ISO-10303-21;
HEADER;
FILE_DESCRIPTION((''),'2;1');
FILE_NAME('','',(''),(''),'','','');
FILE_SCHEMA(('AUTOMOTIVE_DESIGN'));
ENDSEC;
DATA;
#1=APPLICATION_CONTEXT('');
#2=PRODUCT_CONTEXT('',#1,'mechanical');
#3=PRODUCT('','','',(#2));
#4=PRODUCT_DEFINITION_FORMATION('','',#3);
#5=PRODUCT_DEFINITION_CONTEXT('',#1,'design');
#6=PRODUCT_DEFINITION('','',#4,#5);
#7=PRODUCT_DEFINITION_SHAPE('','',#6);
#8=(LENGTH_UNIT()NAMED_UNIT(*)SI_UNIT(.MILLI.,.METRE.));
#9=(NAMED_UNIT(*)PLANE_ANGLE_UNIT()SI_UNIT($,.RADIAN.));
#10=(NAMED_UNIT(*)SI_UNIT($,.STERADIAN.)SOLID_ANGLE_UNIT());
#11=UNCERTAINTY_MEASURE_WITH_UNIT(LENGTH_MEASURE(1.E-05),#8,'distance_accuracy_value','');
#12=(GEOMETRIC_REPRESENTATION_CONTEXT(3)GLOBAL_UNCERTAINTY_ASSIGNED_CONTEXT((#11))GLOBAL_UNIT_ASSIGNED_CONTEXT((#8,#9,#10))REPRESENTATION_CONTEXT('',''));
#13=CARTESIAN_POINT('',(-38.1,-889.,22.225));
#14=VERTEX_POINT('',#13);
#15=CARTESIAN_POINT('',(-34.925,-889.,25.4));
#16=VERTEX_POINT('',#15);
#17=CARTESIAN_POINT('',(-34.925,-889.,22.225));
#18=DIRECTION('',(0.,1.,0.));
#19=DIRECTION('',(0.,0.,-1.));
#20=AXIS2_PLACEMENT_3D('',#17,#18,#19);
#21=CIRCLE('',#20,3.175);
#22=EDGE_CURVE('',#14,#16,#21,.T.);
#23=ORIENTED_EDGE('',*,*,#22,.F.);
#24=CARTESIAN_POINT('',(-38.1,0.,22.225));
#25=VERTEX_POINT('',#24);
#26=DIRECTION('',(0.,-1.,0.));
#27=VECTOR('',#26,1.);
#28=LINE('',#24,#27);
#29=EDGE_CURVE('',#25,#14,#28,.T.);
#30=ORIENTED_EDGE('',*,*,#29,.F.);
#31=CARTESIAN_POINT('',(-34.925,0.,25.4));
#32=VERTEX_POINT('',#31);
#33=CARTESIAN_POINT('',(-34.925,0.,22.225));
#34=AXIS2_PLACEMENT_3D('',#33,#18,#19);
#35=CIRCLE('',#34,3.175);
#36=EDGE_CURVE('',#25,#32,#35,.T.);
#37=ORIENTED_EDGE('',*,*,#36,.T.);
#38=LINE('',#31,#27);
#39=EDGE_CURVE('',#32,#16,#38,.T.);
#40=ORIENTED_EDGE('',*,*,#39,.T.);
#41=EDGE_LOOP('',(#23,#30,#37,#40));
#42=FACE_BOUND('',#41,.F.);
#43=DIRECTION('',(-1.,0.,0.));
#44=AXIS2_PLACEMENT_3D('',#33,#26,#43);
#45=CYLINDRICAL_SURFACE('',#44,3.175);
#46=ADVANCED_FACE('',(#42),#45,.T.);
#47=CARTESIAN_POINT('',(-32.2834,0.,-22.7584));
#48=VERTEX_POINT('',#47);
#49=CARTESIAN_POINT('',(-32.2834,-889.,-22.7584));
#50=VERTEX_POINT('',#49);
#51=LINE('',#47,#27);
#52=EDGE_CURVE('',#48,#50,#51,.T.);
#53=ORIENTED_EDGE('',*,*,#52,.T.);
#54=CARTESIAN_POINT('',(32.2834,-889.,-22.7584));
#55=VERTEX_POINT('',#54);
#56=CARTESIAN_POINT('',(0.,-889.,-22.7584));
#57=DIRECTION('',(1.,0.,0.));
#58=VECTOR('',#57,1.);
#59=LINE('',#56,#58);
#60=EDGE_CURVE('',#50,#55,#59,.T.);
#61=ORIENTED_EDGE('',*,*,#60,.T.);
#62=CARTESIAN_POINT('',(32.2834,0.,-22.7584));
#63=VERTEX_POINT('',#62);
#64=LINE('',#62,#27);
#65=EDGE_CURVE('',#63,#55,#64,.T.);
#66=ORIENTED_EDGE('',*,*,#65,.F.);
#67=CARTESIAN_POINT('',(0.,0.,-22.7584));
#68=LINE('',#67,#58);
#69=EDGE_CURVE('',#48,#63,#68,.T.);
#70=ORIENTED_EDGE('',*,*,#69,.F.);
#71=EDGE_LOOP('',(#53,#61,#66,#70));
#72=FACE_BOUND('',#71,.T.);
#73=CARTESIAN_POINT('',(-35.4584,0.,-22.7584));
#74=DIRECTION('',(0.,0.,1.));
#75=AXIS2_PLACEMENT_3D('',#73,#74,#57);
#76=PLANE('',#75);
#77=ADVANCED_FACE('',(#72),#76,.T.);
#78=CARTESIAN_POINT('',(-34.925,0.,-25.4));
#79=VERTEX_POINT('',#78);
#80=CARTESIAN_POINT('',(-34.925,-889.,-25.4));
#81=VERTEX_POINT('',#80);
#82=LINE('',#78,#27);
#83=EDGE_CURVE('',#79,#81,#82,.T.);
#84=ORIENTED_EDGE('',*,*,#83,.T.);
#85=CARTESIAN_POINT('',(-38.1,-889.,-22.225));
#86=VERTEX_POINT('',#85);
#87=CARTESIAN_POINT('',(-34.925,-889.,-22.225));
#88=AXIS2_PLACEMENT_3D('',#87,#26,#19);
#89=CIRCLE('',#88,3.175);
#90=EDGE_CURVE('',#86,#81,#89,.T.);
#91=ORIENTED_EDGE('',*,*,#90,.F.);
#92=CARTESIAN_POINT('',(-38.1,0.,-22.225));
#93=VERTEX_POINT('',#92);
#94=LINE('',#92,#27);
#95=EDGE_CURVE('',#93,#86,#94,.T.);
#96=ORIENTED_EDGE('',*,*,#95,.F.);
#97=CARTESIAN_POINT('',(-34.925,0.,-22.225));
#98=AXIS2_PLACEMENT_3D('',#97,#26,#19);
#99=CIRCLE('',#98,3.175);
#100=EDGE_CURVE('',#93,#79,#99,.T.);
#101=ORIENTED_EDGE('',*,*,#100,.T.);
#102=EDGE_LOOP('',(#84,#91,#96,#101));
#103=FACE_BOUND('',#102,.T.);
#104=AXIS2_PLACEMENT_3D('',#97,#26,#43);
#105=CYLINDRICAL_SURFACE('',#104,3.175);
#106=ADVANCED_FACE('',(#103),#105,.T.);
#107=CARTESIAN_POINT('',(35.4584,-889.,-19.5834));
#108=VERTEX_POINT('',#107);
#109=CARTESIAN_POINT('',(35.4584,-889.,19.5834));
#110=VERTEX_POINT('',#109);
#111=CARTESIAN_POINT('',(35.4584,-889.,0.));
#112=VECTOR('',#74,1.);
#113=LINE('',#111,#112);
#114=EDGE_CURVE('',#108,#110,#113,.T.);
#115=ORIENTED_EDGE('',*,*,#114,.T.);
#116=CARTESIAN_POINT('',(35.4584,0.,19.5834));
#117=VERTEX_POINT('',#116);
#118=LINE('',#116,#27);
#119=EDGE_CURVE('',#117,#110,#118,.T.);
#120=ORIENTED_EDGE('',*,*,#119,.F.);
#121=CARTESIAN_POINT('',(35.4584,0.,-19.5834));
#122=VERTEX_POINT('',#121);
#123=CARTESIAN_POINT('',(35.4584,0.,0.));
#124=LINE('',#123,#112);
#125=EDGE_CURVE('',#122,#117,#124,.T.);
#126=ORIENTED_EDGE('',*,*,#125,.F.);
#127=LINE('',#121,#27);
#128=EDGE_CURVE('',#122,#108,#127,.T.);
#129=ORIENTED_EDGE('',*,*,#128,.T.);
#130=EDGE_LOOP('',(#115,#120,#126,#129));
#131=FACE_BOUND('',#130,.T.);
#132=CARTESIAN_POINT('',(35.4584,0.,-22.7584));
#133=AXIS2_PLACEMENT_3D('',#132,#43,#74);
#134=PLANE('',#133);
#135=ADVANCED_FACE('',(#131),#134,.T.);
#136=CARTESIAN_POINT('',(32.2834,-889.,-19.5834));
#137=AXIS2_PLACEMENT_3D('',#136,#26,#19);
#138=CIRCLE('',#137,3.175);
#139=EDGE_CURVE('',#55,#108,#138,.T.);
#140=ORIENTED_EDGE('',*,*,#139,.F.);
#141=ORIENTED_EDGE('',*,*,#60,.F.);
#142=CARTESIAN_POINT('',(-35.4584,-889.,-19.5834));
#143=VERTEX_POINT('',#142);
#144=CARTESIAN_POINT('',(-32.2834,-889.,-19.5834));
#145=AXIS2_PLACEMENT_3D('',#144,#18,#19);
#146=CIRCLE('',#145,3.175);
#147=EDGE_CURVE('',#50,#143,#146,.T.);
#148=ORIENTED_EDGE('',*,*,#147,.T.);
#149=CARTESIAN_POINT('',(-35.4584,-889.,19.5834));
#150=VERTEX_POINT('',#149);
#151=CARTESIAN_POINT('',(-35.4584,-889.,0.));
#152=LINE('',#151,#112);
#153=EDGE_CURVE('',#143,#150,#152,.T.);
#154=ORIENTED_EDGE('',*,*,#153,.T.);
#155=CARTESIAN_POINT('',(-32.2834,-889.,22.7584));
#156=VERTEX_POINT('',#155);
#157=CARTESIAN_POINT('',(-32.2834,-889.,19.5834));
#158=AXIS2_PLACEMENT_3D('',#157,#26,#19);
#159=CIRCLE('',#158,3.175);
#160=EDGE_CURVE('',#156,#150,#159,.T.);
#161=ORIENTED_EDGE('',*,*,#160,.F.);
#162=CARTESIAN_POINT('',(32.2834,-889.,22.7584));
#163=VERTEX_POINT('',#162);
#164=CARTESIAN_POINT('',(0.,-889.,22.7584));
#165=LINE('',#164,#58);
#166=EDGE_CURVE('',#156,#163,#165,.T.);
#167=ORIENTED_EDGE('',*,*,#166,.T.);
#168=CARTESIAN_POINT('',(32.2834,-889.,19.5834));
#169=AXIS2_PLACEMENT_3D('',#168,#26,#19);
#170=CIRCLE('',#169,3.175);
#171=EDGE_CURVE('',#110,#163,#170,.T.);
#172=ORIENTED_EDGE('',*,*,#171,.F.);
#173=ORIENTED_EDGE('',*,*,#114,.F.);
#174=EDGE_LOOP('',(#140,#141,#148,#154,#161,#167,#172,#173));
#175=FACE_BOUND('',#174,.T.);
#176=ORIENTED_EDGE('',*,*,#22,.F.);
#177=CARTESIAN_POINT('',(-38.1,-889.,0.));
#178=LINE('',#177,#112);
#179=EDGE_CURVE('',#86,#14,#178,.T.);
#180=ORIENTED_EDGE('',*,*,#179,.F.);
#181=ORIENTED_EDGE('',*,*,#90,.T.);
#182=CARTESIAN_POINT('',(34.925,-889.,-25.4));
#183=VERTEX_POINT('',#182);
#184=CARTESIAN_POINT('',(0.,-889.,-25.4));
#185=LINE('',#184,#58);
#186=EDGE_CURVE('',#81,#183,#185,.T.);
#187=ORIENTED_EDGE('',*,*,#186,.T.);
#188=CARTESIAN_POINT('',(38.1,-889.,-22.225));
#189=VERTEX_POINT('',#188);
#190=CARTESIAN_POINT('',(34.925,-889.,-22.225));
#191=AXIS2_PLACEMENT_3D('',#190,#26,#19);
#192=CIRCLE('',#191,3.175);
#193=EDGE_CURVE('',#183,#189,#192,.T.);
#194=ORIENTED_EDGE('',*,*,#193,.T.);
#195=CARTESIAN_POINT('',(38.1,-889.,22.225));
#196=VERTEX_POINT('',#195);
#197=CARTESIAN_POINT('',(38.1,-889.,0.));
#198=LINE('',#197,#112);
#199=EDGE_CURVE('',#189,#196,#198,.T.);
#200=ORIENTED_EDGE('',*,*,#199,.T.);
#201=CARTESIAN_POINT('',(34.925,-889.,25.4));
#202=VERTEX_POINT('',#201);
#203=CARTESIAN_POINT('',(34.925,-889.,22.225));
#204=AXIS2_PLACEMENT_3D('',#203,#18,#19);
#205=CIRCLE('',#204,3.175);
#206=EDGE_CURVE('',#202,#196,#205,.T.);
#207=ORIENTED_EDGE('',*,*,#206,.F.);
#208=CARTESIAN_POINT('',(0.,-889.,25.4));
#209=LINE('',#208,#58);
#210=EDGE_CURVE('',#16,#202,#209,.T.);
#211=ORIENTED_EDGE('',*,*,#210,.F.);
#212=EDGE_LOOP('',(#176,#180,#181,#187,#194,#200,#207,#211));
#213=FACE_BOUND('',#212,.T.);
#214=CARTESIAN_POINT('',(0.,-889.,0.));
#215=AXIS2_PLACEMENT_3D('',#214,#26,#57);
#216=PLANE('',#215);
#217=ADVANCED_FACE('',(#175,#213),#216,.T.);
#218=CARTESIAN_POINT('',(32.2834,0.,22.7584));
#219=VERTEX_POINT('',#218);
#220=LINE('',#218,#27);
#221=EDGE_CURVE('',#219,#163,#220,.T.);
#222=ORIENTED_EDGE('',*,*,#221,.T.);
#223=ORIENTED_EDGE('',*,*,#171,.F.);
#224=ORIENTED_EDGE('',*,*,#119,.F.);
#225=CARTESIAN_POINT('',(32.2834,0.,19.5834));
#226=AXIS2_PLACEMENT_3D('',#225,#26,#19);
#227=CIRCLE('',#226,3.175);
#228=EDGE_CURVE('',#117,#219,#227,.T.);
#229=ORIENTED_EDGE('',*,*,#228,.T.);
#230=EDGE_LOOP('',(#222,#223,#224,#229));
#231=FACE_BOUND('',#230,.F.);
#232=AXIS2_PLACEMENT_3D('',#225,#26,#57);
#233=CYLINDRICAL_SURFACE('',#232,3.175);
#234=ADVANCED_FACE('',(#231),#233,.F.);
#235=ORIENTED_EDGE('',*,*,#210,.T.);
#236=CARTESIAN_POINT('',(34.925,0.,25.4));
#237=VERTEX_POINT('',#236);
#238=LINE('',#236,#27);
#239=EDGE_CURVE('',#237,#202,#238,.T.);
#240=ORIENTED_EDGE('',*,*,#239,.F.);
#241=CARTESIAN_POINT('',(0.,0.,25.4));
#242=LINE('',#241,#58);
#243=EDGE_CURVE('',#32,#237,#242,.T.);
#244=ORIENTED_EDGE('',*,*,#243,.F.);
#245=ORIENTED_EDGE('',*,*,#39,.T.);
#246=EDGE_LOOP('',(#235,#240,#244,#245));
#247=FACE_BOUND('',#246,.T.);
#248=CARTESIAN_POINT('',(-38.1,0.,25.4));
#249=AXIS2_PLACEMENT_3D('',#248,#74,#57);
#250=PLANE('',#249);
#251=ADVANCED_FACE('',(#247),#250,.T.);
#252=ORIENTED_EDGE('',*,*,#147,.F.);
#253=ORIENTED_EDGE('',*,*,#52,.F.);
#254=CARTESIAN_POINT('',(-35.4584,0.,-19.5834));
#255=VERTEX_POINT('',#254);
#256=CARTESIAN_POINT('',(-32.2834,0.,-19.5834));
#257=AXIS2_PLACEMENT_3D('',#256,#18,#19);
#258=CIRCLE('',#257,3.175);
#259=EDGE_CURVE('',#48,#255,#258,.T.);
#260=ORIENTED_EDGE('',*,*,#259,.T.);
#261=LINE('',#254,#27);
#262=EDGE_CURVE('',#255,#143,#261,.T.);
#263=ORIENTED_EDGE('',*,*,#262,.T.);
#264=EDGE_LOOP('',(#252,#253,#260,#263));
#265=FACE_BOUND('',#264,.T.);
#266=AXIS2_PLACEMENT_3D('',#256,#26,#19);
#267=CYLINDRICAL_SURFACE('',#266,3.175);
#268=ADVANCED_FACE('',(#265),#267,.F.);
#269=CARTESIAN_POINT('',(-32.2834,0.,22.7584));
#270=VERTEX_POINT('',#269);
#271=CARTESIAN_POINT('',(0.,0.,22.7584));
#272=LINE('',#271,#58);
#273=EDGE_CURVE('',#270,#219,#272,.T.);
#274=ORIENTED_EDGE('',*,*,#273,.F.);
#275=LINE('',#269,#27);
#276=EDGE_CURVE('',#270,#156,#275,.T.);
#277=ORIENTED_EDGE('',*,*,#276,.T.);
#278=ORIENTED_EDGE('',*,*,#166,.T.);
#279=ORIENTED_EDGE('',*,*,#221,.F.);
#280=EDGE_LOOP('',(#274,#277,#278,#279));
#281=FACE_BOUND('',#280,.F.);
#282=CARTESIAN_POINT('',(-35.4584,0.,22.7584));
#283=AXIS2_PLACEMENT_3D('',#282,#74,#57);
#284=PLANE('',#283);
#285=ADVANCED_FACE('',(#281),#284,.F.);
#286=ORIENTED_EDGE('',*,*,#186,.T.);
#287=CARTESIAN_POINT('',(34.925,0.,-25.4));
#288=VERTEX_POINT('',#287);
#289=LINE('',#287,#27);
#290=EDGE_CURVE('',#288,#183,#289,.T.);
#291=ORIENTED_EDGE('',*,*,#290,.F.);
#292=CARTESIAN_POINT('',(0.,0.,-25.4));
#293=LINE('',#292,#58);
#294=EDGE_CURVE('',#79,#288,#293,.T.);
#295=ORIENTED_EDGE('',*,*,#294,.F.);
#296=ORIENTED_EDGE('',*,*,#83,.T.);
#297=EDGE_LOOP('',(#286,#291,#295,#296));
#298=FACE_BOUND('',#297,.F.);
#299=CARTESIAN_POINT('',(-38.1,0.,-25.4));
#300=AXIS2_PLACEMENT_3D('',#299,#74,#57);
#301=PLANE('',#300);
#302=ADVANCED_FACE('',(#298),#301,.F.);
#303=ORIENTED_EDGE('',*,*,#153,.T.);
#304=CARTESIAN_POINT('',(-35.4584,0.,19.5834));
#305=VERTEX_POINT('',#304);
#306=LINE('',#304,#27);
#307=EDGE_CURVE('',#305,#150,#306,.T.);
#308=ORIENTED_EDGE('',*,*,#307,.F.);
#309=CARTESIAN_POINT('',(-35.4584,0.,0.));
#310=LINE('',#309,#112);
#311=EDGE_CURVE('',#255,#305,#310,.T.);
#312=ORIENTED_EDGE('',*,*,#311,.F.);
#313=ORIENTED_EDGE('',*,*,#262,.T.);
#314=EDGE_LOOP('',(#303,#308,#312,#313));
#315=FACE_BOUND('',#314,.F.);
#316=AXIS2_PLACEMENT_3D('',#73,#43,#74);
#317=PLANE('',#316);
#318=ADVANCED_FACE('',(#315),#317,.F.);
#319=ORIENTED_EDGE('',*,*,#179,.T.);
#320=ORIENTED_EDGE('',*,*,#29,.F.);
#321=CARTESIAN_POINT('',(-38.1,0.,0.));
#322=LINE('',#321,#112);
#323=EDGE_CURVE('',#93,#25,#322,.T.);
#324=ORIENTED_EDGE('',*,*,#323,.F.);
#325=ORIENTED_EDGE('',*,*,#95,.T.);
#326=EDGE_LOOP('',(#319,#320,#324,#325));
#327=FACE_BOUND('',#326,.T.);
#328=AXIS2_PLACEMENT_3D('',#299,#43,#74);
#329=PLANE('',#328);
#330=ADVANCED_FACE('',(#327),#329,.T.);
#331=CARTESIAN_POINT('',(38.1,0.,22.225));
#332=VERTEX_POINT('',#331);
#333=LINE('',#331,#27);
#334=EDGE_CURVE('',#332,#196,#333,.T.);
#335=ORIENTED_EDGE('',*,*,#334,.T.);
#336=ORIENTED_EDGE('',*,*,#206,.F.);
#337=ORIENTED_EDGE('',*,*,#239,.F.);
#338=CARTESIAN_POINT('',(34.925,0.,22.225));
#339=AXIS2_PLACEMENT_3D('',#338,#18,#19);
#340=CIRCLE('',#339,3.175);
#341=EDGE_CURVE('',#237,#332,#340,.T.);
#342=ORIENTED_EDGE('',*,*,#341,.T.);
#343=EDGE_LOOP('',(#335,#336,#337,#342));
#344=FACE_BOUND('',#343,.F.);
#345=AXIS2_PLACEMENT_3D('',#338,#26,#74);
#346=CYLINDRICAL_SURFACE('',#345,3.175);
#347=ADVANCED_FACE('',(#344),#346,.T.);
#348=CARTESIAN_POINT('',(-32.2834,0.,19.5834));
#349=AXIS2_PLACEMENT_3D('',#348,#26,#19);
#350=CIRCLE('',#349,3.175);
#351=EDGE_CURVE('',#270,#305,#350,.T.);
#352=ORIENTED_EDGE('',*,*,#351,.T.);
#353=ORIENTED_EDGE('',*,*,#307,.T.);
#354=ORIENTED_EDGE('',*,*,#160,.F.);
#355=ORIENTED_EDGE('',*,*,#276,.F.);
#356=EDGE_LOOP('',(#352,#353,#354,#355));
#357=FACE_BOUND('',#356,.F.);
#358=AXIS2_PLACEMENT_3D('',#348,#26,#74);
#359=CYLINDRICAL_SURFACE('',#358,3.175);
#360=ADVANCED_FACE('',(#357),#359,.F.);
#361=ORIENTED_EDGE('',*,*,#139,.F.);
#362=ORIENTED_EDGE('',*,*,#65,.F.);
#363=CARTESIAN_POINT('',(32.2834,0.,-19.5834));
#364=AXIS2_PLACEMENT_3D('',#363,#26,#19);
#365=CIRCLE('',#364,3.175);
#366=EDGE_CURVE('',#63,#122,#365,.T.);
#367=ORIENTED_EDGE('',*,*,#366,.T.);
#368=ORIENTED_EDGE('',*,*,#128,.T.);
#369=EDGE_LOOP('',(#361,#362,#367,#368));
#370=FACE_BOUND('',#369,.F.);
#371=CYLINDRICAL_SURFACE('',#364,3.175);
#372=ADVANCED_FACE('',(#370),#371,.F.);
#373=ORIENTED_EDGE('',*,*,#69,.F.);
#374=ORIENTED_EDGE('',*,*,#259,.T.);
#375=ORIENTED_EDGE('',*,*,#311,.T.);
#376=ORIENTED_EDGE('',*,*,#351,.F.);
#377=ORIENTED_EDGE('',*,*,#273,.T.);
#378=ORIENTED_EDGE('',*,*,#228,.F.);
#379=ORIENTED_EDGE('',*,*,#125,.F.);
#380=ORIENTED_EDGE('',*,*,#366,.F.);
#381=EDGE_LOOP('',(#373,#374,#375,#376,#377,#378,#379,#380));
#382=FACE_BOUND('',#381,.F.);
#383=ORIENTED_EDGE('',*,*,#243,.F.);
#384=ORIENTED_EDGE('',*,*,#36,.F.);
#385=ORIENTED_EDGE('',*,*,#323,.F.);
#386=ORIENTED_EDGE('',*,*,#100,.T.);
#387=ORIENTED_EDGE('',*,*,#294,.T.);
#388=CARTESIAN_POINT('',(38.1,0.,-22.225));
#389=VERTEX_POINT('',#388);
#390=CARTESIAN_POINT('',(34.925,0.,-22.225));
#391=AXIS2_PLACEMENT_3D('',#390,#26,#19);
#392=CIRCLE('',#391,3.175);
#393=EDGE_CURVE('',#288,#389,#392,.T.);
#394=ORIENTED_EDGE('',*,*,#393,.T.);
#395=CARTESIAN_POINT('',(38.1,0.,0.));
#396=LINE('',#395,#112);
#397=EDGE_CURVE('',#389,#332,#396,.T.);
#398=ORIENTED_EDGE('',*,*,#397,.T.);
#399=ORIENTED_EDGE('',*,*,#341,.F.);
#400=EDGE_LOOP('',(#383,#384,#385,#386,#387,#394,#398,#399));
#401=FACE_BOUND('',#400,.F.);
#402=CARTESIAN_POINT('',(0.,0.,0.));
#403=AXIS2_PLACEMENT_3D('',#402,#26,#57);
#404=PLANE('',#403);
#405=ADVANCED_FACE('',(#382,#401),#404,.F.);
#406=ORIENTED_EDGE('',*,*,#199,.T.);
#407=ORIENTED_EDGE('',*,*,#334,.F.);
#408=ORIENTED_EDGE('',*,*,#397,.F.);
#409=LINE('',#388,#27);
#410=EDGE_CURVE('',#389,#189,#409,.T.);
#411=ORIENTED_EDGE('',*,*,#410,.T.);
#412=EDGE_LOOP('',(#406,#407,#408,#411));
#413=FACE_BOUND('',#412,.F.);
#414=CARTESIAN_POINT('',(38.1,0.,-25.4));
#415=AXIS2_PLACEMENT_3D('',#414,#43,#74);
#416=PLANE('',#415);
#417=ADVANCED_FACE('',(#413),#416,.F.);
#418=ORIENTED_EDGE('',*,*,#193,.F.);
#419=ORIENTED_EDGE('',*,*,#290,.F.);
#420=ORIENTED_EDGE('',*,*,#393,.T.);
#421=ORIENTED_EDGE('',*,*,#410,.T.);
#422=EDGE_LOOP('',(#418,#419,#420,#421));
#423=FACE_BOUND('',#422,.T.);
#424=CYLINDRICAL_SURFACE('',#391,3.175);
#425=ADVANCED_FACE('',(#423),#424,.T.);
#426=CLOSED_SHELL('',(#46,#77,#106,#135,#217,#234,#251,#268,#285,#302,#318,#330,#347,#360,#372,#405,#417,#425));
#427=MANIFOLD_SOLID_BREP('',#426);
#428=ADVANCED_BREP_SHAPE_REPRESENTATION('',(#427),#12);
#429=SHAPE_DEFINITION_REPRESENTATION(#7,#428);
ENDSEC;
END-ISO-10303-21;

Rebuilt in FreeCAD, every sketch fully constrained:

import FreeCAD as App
import Part
import Sketcher
Q = App.Units.Quantity


def edges_at(feature, points):
    """Names of the edges that pass closest to the given points."""
    edges = feature.Shape.Edges
    near = lambda p: min(range(len(edges)), key=lambda i: edges[i].distToShape(Part.Vertex(*p))[0])
    return sorted({f"Edge{near(p) + 1}" for p in points})

doc = App.newDocument("Part")
body = doc.addObject("PartDesign::Body", "Body")

# Sketch on XZ plane
sketch1 = doc.addObject("Sketcher::SketchObject", "Sketch")
body.addObject(sketch1)
sketch1.AttachmentSupport = (doc.XZ_Plane, [""])
sketch1.MapMode = "FlatFace"
sketch1.addGeometry(Part.LineSegment(App.Vector(-38, 25, 0), App.Vector(-38, -25, 0)), False)
sketch1.addGeometry(Part.LineSegment(App.Vector(-38, -25, 0), App.Vector(38, -25, 0)), False)
sketch1.addGeometry(Part.LineSegment(App.Vector(38, -25, 0), App.Vector(38, 25, 0)), False)
sketch1.addGeometry(Part.LineSegment(App.Vector(38, 25, 0), App.Vector(-38, 25, 0)), False)
sketch1.addGeometry(Part.LineSegment(App.Vector(35, -23, 0), App.Vector(-35, -23, 0)), False)
sketch1.addGeometry(Part.LineSegment(App.Vector(-35, -23, 0), App.Vector(-35, 23, 0)), False)
sketch1.addGeometry(Part.LineSegment(App.Vector(-35, 23, 0), App.Vector(35, 23, 0)), False)
sketch1.addGeometry(Part.LineSegment(App.Vector(35, 23, 0), App.Vector(35, -23, 0)), False)
sketch1.addConstraint(Sketcher.Constraint("Coincident", 0, 2, 1, 1))
sketch1.addConstraint(Sketcher.Constraint("Coincident", 1, 2, 2, 1))
sketch1.addConstraint(Sketcher.Constraint("Coincident", 2, 2, 3, 1))
sketch1.addConstraint(Sketcher.Constraint("Coincident", 3, 2, 0, 1))
sketch1.addConstraint(Sketcher.Constraint("Coincident", 4, 2, 5, 1))
sketch1.addConstraint(Sketcher.Constraint("Coincident", 5, 2, 6, 1))
sketch1.addConstraint(Sketcher.Constraint("Coincident", 6, 2, 7, 1))
sketch1.addConstraint(Sketcher.Constraint("Coincident", 7, 2, 4, 1))
sketch1.addConstraint(Sketcher.Constraint("Vertical", 0))
sketch1.addConstraint(Sketcher.Constraint("Horizontal", 1))
sketch1.addConstraint(Sketcher.Constraint("Vertical", 2))
sketch1.addConstraint(Sketcher.Constraint("Horizontal", 3))
sketch1.addConstraint(Sketcher.Constraint("Horizontal", 4))
sketch1.addConstraint(Sketcher.Constraint("Vertical", 5))
sketch1.addConstraint(Sketcher.Constraint("Horizontal", 6))
sketch1.addConstraint(Sketcher.Constraint("Vertical", 7))
sketch1.addConstraint(Sketcher.Constraint("Symmetric", 0, 2, 2, 2, -1, 1))
sketch1.addConstraint(Sketcher.Constraint("Symmetric", 4, 2, 6, 2, -1, 1))
sketch1.addConstraint(Sketcher.Constraint("DistanceX", 1, 1, 1, 2, Q("3 in")))
sketch1.addConstraint(Sketcher.Constraint("DistanceY", 0, 2, 0, 1, Q("2 in")))
sketch1.addConstraint(Sketcher.Constraint("DistanceX", 4, 2, 4, 1, Q("2.792 in")))
sketch1.addConstraint(Sketcher.Constraint("DistanceY", 5, 1, 5, 2, Q("1.792 in")))
pad1 = doc.addObject("PartDesign::Pad", "Pad")
body.addObject(pad1)
pad1.Profile = sketch1
pad1.Length = Q("35 in")
doc.recompute()

fillet = doc.addObject("PartDesign::Fillet", "Fillet")
body.addObject(fillet)
fillet.Base = (pad1, edges_at(pad1, [
    (38.1, -444.5, 25.4),
    (-38.1, -444.5, 25.4),
    (-35.458, -444.5, -22.758),
    (38.1, -444.5, -25.4),
    (-38.1, -444.5, -25.4),
    (35.458, -444.5, 22.758),
    (35.458, -444.5, -22.758),
    (-35.458, -444.5, 22.758),
]))
fillet.Radius = Q("0.125 in")

doc.recompute()
